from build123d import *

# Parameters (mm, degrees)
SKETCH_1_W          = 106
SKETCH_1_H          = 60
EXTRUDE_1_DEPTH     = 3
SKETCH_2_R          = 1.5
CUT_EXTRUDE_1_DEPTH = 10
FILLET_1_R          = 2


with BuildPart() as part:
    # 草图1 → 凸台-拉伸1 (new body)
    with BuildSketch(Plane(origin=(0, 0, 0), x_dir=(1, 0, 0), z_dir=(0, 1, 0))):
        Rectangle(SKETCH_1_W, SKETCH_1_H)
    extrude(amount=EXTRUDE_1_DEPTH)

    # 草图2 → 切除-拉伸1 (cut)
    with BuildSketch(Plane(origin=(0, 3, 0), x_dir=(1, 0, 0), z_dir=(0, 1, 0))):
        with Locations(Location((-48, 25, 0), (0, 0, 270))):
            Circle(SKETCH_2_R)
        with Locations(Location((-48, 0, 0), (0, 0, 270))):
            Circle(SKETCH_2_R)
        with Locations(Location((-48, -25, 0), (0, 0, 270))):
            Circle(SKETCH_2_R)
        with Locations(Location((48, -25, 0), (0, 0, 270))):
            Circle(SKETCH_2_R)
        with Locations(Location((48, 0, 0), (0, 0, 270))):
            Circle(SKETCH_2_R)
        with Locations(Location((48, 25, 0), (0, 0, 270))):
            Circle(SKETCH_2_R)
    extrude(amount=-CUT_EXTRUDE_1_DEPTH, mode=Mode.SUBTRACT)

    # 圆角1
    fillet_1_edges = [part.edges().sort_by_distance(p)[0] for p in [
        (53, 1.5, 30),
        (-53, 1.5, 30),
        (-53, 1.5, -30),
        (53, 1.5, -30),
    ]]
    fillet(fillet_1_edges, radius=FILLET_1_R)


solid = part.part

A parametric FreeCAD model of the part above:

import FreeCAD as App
import Part
import Sketcher
Q = App.Units.Quantity


def edges_at(feature, points):
    """Names of the edges that pass closest to the given points."""
    edges = feature.Shape.Edges
    near = lambda p: min(range(len(edges)), key=lambda i: edges[i].distToShape(Part.Vertex(*p))[0])
    return sorted({f"Edge{near(p) + 1}" for p in points})

doc = App.newDocument("Part")
params = doc.addObject("Spreadsheet::Sheet", "Params")
for row, (alias, value) in enumerate([
    ("sketch1_width", "106 mm"),
    ("sketch1_height", "60 mm"),
    ("pad1_length", "3 mm"),
    ("sketch2_diameter", "3 mm"),
    ("pocket1_length", "10 mm"),
    ("fillet_radius", "2 mm"),
], start=1):
    params.set(f"A{row}", alias)
    params.set(f"B{row}", "=" + value)
    params.setAlias(f"B{row}", alias)

body = doc.addObject("PartDesign::Body", "Body")

sketch1 = body.newObject("Sketcher::SketchObject", "Sketch")
sketch1.AttachmentSupport = (doc.getObject("XZ_Plane"), [""])
sketch1.MapMode = "FlatFace"
sketch1.addGeometry([
    Part.LineSegment(App.Vector(-53, -30, 0), App.Vector(-53, 30, 0)),
    Part.LineSegment(App.Vector(-53, 30, 0), App.Vector(53, 30, 0)),
    Part.LineSegment(App.Vector(53, 30, 0), App.Vector(53, -30, 0)),
    Part.LineSegment(App.Vector(53, -30, 0), App.Vector(-53, -30, 0)),
], False)
sketch1.addConstraint([
    Sketcher.Constraint("Coincident", 0, 2, 1, 1),
    Sketcher.Constraint("Coincident", 1, 2, 2, 1),
    Sketcher.Constraint("Coincident", 2, 2, 3, 1),
    Sketcher.Constraint("Coincident", 3, 2, 0, 1),
    Sketcher.Constraint("Vertical", 0),
    Sketcher.Constraint("Horizontal", 1),
    Sketcher.Constraint("Vertical", 2),
    Sketcher.Constraint("Horizontal", 3),
    Sketcher.Constraint("Symmetric", 0, 2, 2, 2, -1, 1),
    Sketcher.Constraint("DistanceX", 1, 1, 1, 2, Q("106 mm")),
    Sketcher.Constraint("DistanceY", 0, 1, 0, 2, Q("60 mm")),
])
sketch1.setExpression("Constraints[9]", "Params.sketch1_width")
sketch1.setExpression("Constraints[10]", "Params.sketch1_height")
pad1 = body.newObject("PartDesign::Pad", "Pad")
pad1.Profile = sketch1
pad1.setExpression("Length", "Params.pad1_length")
pad1.Reversed = True

sketch2 = body.newObject("Sketcher::SketchObject", "Sketch001")
sketch2.AttachmentSupport = (doc.getObject("XZ_Plane"), [""])
sketch2.MapMode = "FlatFace"
sketch2.AttachmentOffset = App.Placement(App.Vector(0, 0, -3), App.Rotation())
sketch2.addGeometry([
    Part.Circle(App.Vector(-48, -25, 0), App.Vector(0, 0, 1), 1.5),
    Part.Circle(App.Vector(-48, 0, 0), App.Vector(0, 0, 1), 1.5),
    Part.Circle(App.Vector(-48, 25, 0), App.Vector(0, 0, 1), 1.5),
    Part.Circle(App.Vector(48, 25, 0), App.Vector(0, 0, 1), 1.5),
    Part.Circle(App.Vector(48, 0, 0), App.Vector(0, 0, 1), 1.5),
    Part.Circle(App.Vector(48, -25, 0), App.Vector(0, 0, 1), 1.5),
], False)
sketch2.addConstraint([
    Sketcher.Constraint("Equal", 0, 1),
    Sketcher.Constraint("Equal", 1, 2),
    Sketcher.Constraint("Equal", 2, 3),
    Sketcher.Constraint("Equal", 3, 4),
    Sketcher.Constraint("Equal", 4, 5),
    Sketcher.Constraint("Symmetric", 0, 3, 3, 3, -1, 1),
    Sketcher.Constraint("Symmetric", 1, 3, 4, 3, -1, 1),
    Sketcher.Constraint("Symmetric", 2, 3, 5, 3, -1, 1),
    Sketcher.Constraint("Symmetric", 2, 3, 3, 3, -2),
    Sketcher.Constraint("PointOnObject", 1, 3, -1),
    Sketcher.Constraint("Vertical", 0, 3, 1, 3),
    Sketcher.Constraint("Diameter", 0, Q("3 mm")),
    Sketcher.Constraint("DistanceX", 0, 3, -1, 1, Q("48 mm")),
    Sketcher.Constraint("DistanceY", 0, 3, -1, 1, Q("25 mm")),
])
sketch2.setExpression("Constraints[11]", "Params.sketch2_diameter")
pocket1 = body.newObject("PartDesign::Pocket", "Pocket")
pocket1.Profile = sketch2
pocket1.setExpression("Length", "Params.pocket1_length")
pocket1.Reversed = True
doc.recompute()

fillet = body.newObject("PartDesign::Fillet", "Fillet")
fillet.Base = (pocket1, edges_at(pocket1, [
    (53, 1.5, 30),
    (-53, 1.5, 30),
    (-53, 1.5, -30),
    (53, 1.5, -30),
]))
fillet.setExpression("Radius", "Params.fillet_radius")

doc.recompute()
